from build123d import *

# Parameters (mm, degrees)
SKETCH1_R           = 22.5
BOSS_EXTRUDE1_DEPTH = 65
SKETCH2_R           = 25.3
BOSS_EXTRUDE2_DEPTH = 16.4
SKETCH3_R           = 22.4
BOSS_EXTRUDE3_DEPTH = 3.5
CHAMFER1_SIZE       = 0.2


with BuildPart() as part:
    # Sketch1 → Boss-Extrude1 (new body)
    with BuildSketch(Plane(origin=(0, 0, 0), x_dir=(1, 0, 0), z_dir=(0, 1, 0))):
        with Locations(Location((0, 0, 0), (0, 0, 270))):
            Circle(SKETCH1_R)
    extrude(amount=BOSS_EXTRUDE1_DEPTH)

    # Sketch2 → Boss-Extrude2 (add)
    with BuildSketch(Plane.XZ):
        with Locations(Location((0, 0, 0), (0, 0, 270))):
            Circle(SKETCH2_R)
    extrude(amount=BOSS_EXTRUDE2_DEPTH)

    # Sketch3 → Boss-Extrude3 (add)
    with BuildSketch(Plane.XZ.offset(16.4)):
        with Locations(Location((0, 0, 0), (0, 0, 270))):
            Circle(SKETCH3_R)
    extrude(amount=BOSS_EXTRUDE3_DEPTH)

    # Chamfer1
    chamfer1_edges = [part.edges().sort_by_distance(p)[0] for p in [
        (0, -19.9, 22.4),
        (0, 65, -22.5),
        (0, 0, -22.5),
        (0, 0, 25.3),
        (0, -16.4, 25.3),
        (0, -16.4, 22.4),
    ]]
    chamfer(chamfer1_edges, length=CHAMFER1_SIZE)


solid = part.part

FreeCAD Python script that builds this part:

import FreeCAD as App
import Part
import Sketcher


def edges_at(feature, points):
    """Names of the edges that pass closest to the given points."""
    edges = feature.Shape.Edges
    near = lambda p: min(range(len(edges)), key=lambda i: edges[i].distToShape(Part.Vertex(*p))[0])
    return sorted({f"Edge{near(p) + 1}" for p in points})

doc = App.newDocument("Part")
body = doc.addObject("PartDesign::Body", "Body")

# Sketch on XZ plane
sketch1 = body.newObject("Sketcher::SketchObject", "Sketch")
sketch1.AttachmentSupport = (doc.getObject("XZ_Plane"), [""])
sketch1.MapMode = "FlatFace"
sketch1.addGeometry(Part.Circle(App.Vector(0, 0, 0), App.Vector(0, 0, 1), 22), False)
sketch1.addConstraint([
    Sketcher.Constraint("Coincident", 0, 3, -1, 1),
    Sketcher.Constraint("Diameter", 0, 45.0),
])
pad1 = body.newObject("PartDesign::Pad", "Pad")
pad1.Profile = sketch1
pad1.Length = 65
pad1.Reversed = True

# Sketch on XZ plane
sketch2 = body.newObject("Sketcher::SketchObject", "Sketch001")
sketch2.AttachmentSupport = (doc.getObject("XZ_Plane"), [""])
sketch2.MapMode = "FlatFace"
sketch2.addGeometry(Part.Circle(App.Vector(0, 0, 0), App.Vector(0, 0, 1), 25), False)
sketch2.addConstraint([
    Sketcher.Constraint("Coincident", 0, 3, -1, 1),
    Sketcher.Constraint("Diameter", 0, 50.6),
])
pad2 = body.newObject("PartDesign::Pad", "Pad001")
pad2.Profile = sketch2
pad2.Length = 16.4

# Sketch on XZ plane
sketch3 = body.newObject("Sketcher::SketchObject", "Sketch002")
sketch3.AttachmentSupport = (doc.getObject("XZ_Plane"), [""])
sketch3.MapMode = "FlatFace"
sketch3.AttachmentOffset = App.Placement(App.Vector(0, 0, 16.4), App.Rotation())
sketch3.addGeometry(Part.Circle(App.Vector(0, 0, 0), App.Vector(0, 0, 1), 22), False)
sketch3.addConstraint([
    Sketcher.Constraint("Coincident", 0, 3, -1, 1),
    Sketcher.Constraint("Diameter", 0, 44.8),
])
pad3 = body.newObject("PartDesign::Pad", "Pad002")
pad3.Profile = sketch3
pad3.Length = 3.5
doc.recompute()

chamfer = body.newObject("PartDesign::Chamfer", "Chamfer")
chamfer.Base = (pad3, edges_at(pad3, [
    (0, -19.9, 22.4),
    (0, 65, -22.5),
    (0, 0, -22.5),
    (0, 0, 25.3),
    (0, -16.4, 25.3),
    (0, -16.4, 22.4),
]))
chamfer.Size = 0.2

doc.recompute()
